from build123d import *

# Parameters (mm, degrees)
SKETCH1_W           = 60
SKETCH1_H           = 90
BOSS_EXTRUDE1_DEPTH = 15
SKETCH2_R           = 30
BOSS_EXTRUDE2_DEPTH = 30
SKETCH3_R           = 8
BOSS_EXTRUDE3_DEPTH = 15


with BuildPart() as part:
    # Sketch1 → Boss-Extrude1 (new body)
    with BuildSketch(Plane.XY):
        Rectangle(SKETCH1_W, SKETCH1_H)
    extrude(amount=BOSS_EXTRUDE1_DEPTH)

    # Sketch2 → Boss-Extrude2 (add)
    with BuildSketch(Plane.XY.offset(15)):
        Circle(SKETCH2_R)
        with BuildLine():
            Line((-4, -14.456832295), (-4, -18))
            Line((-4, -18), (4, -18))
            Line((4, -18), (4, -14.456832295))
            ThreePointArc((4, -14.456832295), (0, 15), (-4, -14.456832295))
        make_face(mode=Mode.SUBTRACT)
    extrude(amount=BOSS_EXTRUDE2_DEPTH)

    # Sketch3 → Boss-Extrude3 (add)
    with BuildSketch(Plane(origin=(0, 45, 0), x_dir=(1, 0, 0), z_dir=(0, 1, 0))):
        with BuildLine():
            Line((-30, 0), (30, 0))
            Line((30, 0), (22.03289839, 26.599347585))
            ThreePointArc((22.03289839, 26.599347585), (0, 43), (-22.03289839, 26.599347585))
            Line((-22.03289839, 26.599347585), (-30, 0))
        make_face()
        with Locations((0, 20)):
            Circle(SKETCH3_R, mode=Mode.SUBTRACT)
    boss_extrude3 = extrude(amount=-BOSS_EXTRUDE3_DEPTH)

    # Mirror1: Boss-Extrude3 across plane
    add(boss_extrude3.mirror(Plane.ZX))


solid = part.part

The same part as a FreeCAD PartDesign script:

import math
import FreeCAD as App
import Part
import Sketcher
from FreeCAD import Vector


def add_polygon(sketch, points):
    """Adds a closed chain of lines whose ends are joined by coincident constraints."""
    first, n = sketch.GeometryCount, len(points)
    for a, b in zip(points, points[1:] + points[:1]):
        sketch.addGeometry(Part.LineSegment(App.Vector(*a, 0), App.Vector(*b, 0)), False)
    for i in range(n):
        sketch.addConstraint(Sketcher.Constraint("Coincident", first + i, 2, first + (i + 1) % n, 1))

doc = App.newDocument("Part")
params = doc.addObject("Spreadsheet::Sheet", "Params")
for row, (alias, value) in enumerate([
    ("sketch1_width", "60 mm"),
    ("sketch1_height", "90 mm"),
    ("pad1_length", "15 mm"),
    ("sketch2_diameter", "60 mm"),
    ("sketch2_radius", "15 mm"),
    ("sketch2_width", "8 mm"),
    ("pad2_length", "30 mm"),
    ("sketch3_diameter", "16 mm"),
    ("sketch3_radius", "23 mm"),
    ("sketch3_width", "60 mm"),
    ("pad3_length", "15 mm"),
], start=1):
    params.set(f"A{row}", alias)
    params.set(f"B{row}", "=" + value)
    params.setAlias(f"B{row}", alias)

body = doc.addObject("PartDesign::Body", "Body")

sketch1 = body.newObject("Sketcher::SketchObject", "Sketch")
sketch1.AttachmentSupport = (doc.getObject("XY_Plane"), [""])
sketch1.MapMode = "FlatFace"
add_polygon(sketch1, [(-30, 45), (-30, -45), (30, -45), (30, 45)])
sketch1.addConstraint([
    Sketcher.Constraint("Vertical", 0),
    Sketcher.Constraint("Horizontal", 1),
    Sketcher.Constraint("Vertical", 2),
    Sketcher.Constraint("Horizontal", 3),
    Sketcher.Constraint("Symmetric", 0, 2, 2, 2, -1, 1),
    Sketcher.Constraint("DistanceX", 1, 1, 1, 2, 60.0),
    Sketcher.Constraint("DistanceY", 0, 2, 0, 1, 90.0),
])
sketch1.setExpression("Constraints[9]", "Params.sketch1_width")
sketch1.setExpression("Constraints[10]", "Params.sketch1_height")
pad1 = body.newObject("PartDesign::Pad", "Pad")
pad1.Profile = sketch1
pad1.setExpression("Length", "Params.pad1_length")

sketch2 = body.newObject("Sketcher::SketchObject", "Sketch001")
sketch2.AttachmentSupport = (doc.getObject("XY_Plane"), [""])
sketch2.MapMode = "FlatFace"
sketch2.AttachmentOffset = App.Placement(Vector(0, 0, 15), App.Rotation())
sketch2.addGeometry([
    Part.Circle(Vector(0, 0, 0), Vector(0, 0, 1), 30),
    Part.LineSegment(Vector(-4, -18, 0), Vector(-4, -14.5, 0)),
    Part.ArcOfCircle(Part.Circle(Vector(0, 0, 0), Vector(0, 0, 1), 15), math.radians(-75), math.radians(255)),
    Part.LineSegment(Vector(4, -14.5, 0), Vector(4, -18, 0)),
    Part.LineSegment(Vector(4, -18, 0), Vector(-4, -18, 0)),
], False)
sketch2.addConstraint([
    Sketcher.Constraint("Coincident", 1, 2, 2, 2),
    Sketcher.Constraint("Coincident", 2, 1, 3, 1),
    Sketcher.Constraint("Coincident", 3, 2, 4, 1),
    Sketcher.Constraint("Coincident", 4, 2, 1, 1),
    Sketcher.Constraint("Vertical", 1),
    Sketcher.Constraint("Vertical", 3),
    Sketcher.Constraint("Horizontal", 4),
    Sketcher.Constraint("Coincident", 0, 3, -1, 1),
    Sketcher.Constraint("Coincident", 2, 3, -1, 1),
    Sketcher.Constraint("Horizontal", 1, 2, 2, 1),
    Sketcher.Constraint("Diameter", 0, 60.0),
    Sketcher.Constraint("Radius", 2, 15.0),
    Sketcher.Constraint("DistanceX", 4, 2, 4, 1, 8.0),
    Sketcher.Constraint("DistanceY", 3, 2, -1, 1, 18.0),
])
sketch2.setExpression("Constraints[10]", "Params.sketch2_diameter")
sketch2.setExpression("Constraints[11]", "Params.sketch2_radius")
sketch2.setExpression("Constraints[12]", "Params.sketch2_width")
pad2 = body.newObject("PartDesign::Pad", "Pad001")
pad2.Profile = sketch2
pad2.setExpression("Length", "Params.pad2_length")

sketch3 = body.newObject("Sketcher::SketchObject", "Sketch002")
sketch3.AttachmentSupport = (doc.getObject("XZ_Plane"), [""])
sketch3.MapMode = "FlatFace"
sketch3.AttachmentOffset = App.Placement(Vector(0, 0, -45), App.Rotation())
sketch3.addGeometry([
    Part.LineSegment(Vector(-30, 0, 0), Vector(30, 0, 0)),
    Part.LineSegment(Vector(30, 0, 0), Vector(22, -27, 0)),
    Part.ArcOfCircle(Part.Circle(Vector(0, -20, 0), Vector(0, 0, 1), 23), math.radians(-163), math.radians(-17)),
    Part.LineSegment(Vector(-22, -27, 0), Vector(-30, 0, 0)),
    Part.Circle(Vector(0, -20, 0), Vector(0, 0, 1), 8),
], False)
sketch3.addConstraint([
    Sketcher.Constraint("Coincident", 0, 2, 1, 1),
    Sketcher.Constraint("Tangent", 1, 2, 2, 2),
    Sketcher.Constraint("Tangent", 2, 1, 3, 1),
    Sketcher.Constraint("Coincident", 3, 2, 0, 1),
    Sketcher.Constraint("Horizontal", 0),
    Sketcher.Constraint("Coincident", 4, 3, 2, 3),
    Sketcher.Constraint("Symmetric", 0, 2, 3, 2, -1, 1),
    Sketcher.Constraint("PointOnObject", 2, 3, -2),
    Sketcher.Constraint("Diameter", 4, 16.0),
    Sketcher.Constraint("Radius", 2, 23.0),
    Sketcher.Constraint("DistanceX", 0, 1, 0, 2, 60.0),
    Sketcher.Constraint("DistanceY", 2, 3, -1, 1, 20.0),
])
sketch3.setExpression("Constraints[8]", "Params.sketch3_diameter")
sketch3.setExpression("Constraints[9]", "Params.sketch3_radius")
sketch3.setExpression("Constraints[10]", "Params.sketch3_width")
pad3 = body.newObject("PartDesign::Pad", "Pad002")
pad3.Profile = sketch3
pad3.setExpression("Length", "Params.pad3_length")
doc.recompute()

mirrored = body.newObject("PartDesign::Mirrored", "Mirrored")
mirrored.Originals = [pad3]
mirrored.MirrorPlane = (doc.getObject("XZ_Plane"), [""])
body.Tip = mirrored

doc.recompute()
